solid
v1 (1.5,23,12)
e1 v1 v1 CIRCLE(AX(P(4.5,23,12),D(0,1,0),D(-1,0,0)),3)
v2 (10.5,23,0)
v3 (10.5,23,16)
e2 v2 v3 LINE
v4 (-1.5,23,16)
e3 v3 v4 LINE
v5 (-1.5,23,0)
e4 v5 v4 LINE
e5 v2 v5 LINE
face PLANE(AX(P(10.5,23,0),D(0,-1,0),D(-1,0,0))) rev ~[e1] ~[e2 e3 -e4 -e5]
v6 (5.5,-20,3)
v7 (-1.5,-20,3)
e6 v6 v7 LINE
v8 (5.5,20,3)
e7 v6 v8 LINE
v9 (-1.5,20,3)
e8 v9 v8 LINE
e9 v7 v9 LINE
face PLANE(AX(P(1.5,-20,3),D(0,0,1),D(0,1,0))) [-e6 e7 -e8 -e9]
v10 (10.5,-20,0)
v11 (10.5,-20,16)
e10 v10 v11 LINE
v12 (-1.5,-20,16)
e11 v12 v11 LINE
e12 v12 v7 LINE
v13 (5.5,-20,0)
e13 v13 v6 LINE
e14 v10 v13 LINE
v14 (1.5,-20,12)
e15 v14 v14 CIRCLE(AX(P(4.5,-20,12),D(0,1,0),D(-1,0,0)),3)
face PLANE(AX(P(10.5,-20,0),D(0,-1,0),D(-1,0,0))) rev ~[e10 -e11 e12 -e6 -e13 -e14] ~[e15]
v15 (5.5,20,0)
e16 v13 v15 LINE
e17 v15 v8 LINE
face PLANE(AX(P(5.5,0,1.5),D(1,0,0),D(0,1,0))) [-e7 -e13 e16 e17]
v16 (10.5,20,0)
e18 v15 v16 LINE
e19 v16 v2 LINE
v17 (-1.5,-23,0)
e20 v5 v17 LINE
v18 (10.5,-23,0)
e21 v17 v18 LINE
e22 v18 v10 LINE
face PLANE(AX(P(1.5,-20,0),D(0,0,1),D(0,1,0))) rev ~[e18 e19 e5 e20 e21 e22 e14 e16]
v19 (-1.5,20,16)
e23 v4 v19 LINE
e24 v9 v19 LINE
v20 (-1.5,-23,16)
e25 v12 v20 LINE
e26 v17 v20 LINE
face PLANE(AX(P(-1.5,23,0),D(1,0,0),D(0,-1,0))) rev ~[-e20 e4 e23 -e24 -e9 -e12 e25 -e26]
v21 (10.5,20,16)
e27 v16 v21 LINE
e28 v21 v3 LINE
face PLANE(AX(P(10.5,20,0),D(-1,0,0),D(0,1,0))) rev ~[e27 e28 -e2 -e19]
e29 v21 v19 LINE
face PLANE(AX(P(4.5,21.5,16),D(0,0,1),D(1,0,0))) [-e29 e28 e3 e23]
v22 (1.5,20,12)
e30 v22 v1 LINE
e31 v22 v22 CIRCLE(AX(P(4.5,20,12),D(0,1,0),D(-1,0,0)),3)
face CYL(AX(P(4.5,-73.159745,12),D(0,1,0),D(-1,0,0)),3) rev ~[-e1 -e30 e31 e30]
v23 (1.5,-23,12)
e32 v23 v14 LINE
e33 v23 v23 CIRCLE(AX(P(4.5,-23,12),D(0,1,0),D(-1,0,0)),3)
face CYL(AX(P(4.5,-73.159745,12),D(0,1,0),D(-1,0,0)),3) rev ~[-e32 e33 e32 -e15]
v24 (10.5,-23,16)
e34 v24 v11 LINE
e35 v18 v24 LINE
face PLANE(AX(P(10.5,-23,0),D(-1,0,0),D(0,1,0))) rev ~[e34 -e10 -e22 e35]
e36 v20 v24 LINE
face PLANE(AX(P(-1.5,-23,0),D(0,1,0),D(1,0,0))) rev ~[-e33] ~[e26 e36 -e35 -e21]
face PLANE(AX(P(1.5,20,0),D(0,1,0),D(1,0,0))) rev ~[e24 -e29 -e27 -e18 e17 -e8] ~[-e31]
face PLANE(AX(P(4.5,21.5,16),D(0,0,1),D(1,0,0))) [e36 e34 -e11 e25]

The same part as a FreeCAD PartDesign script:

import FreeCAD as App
import Part
import Sketcher


def add_polygon(sketch, points):
    """Adds a closed chain of lines whose ends are joined by coincident constraints."""
    first, n = sketch.GeometryCount, len(points)
    for a, b in zip(points, points[1:] + points[:1]):
        sketch.addGeometry(Part.LineSegment(App.Vector(*a, 0), App.Vector(*b, 0)), False)
    for i in range(n):
        sketch.addConstraint(Sketcher.Constraint("Coincident", first + i, 2, first + (i + 1) % n, 1))

doc = App.newDocument("Part")
body = doc.addObject("PartDesign::Body", "Body")

# Sketch on XY plane
sketch1 = body.newObject("Sketcher::SketchObject", "Sketch")
sketch1.AttachmentSupport = (doc.getObject("XY_Plane"), [""])
sketch1.MapMode = "FlatFace"
add_polygon(sketch1, [(-1.5, 23), (-1.5, -23), (10.5, -23), (10.5, -20), (1.5, -20), (1.5, 20), (10.5, 20), (10.5, 23)])  # lines 0-7
sketch1.addConstraint(Sketcher.Constraint("Vertical", 0))
sketch1.addConstraint(Sketcher.Constraint("Horizontal", 1))
sketch1.addConstraint(Sketcher.Constraint("Vertical", 2))
sketch1.addConstraint(Sketcher.Constraint("Horizontal", 3))
sketch1.addConstraint(Sketcher.Constraint("Vertical", 4))
sketch1.addConstraint(Sketcher.Constraint("Horizontal", 5))
sketch1.addConstraint(Sketcher.Constraint("Vertical", 6))
sketch1.addConstraint(Sketcher.Constraint("Horizontal", 7))
sketch1.addConstraint(Sketcher.Constraint("Symmetric", 2, 2, 5, 2, -1))
sketch1.addConstraint(Sketcher.Constraint("Equal", 2, 6))
sketch1.addConstraint(Sketcher.Constraint("DistanceX", 1, 1, 1, 2, 12.0))
sketch1.addConstraint(Sketcher.Constraint("DistanceX", 3, 2, 3, 1, 9.0))
sketch1.addConstraint(Sketcher.Constraint("DistanceY", 0, 2, 0, 1, 46.0))
sketch1.addConstraint(Sketcher.Constraint("DistanceY", 2, 1, 2, 2, 3.0))
sketch1.addConstraint(Sketcher.Constraint("DistanceX", 0, 2, -1, 1, 1.5))
pad1 = body.newObject("PartDesign::Pad", "Pad")
pad1.Profile = sketch1
pad1.Length = 16

# Sketch on XZ plane
sketch2 = body.newObject("Sketcher::SketchObject", "Sketch001")
sketch2.AttachmentSupport = (doc.getObject("XZ_Plane"), [""])
sketch2.MapMode = "FlatFace"
sketch2.AttachmentOffset = App.Placement(App.Vector(0, 0, 23), App.Rotation())
sketch2.addGeometry(Part.Circle(App.Vector(4.5, 12, 0), App.Vector(0, 0, 1), 3), False)
sketch2.addConstraint(Sketcher.Constraint("Diameter", 0, 6.0))
sketch2.addConstraint(Sketcher.Constraint("DistanceY", -1, 1, 0, 3, 12.0))
sketch2.addConstraint(Sketcher.Constraint("DistanceX", -1, 1, 0, 3, 4.5))
doc.recompute()
hole = body.newObject("PartDesign::Hole", "Hole")
hole.Profile = sketch2
hole.ThreadType = "None"
hole.Diameter = 6
hole.DepthType = "ThroughAll"

# Sketch on YZ plane
sketch3 = body.newObject("Sketcher::SketchObject", "Sketch002")
sketch3.AttachmentSupport = (doc.getObject("YZ_Plane"), [""])
sketch3.MapMode = "FlatFace"
sketch3.AttachmentOffset = App.Placement(App.Vector(0, 0, 1.5), App.Rotation())
add_polygon(sketch3, [(-20, 3), (-20, 0), (20, 0), (20, 3)])  # lines 0-3
sketch3.addConstraint(Sketcher.Constraint("Vertical", 0))
sketch3.addConstraint(Sketcher.Constraint("Horizontal", 1))
sketch3.addConstraint(Sketcher.Constraint("Vertical", 2))
sketch3.addConstraint(Sketcher.Constraint("Horizontal", 3))
sketch3.addConstraint(Sketcher.Constraint("Symmetric", 0, 2, 1, 2, -1, 1))
sketch3.addConstraint(Sketcher.Constraint("DistanceX", 1, 1, 1, 2, 40.0))
sketch3.addConstraint(Sketcher.Constraint("DistanceY", 0, 2, 0, 1, 3.0))
pad2 = body.newObject("PartDesign::Pad", "Pad001")
pad2.Profile = sketch3
pad2.Length = 4

# Sketch on YZ plane
sketch4 = body.newObject("Sketcher::SketchObject", "Sketch003")
sketch4.AttachmentSupport = (doc.getObject("YZ_Plane"), [""])
sketch4.MapMode = "FlatFace"
sketch4.AttachmentOffset = App.Placement(App.Vector(0, 0, 1.5), App.Rotation())
add_polygon(sketch4, [(20, 16), (-20, 16), (-20, 3), (20, 3)])  # lines 0-3
sketch4.addConstraint(Sketcher.Constraint("Horizontal", 0))
sketch4.addConstraint(Sketcher.Constraint("Vertical", 1))
sketch4.addConstraint(Sketcher.Constraint("Horizontal", 2))
sketch4.addConstraint(Sketcher.Constraint("Vertical", 3))
sketch4.addConstraint(Sketcher.Constraint("DistanceX", 0, 2, 0, 1, 40.0))
sketch4.addConstraint(Sketcher.Constraint("DistanceY", 1, 2, 1, 1, 13.0))
sketch4.addConstraint(Sketcher.Constraint("DistanceX", 0, 2, -1, 1, 20.0))
sketch4.addConstraint(Sketcher.Constraint("DistanceY", -1, 1, 0, 2, 16.0))
pocket1 = body.newObject("PartDesign::Pocket", "Pocket")
pocket1.Profile = sketch4
pocket1.Length = 25

doc.recompute()
